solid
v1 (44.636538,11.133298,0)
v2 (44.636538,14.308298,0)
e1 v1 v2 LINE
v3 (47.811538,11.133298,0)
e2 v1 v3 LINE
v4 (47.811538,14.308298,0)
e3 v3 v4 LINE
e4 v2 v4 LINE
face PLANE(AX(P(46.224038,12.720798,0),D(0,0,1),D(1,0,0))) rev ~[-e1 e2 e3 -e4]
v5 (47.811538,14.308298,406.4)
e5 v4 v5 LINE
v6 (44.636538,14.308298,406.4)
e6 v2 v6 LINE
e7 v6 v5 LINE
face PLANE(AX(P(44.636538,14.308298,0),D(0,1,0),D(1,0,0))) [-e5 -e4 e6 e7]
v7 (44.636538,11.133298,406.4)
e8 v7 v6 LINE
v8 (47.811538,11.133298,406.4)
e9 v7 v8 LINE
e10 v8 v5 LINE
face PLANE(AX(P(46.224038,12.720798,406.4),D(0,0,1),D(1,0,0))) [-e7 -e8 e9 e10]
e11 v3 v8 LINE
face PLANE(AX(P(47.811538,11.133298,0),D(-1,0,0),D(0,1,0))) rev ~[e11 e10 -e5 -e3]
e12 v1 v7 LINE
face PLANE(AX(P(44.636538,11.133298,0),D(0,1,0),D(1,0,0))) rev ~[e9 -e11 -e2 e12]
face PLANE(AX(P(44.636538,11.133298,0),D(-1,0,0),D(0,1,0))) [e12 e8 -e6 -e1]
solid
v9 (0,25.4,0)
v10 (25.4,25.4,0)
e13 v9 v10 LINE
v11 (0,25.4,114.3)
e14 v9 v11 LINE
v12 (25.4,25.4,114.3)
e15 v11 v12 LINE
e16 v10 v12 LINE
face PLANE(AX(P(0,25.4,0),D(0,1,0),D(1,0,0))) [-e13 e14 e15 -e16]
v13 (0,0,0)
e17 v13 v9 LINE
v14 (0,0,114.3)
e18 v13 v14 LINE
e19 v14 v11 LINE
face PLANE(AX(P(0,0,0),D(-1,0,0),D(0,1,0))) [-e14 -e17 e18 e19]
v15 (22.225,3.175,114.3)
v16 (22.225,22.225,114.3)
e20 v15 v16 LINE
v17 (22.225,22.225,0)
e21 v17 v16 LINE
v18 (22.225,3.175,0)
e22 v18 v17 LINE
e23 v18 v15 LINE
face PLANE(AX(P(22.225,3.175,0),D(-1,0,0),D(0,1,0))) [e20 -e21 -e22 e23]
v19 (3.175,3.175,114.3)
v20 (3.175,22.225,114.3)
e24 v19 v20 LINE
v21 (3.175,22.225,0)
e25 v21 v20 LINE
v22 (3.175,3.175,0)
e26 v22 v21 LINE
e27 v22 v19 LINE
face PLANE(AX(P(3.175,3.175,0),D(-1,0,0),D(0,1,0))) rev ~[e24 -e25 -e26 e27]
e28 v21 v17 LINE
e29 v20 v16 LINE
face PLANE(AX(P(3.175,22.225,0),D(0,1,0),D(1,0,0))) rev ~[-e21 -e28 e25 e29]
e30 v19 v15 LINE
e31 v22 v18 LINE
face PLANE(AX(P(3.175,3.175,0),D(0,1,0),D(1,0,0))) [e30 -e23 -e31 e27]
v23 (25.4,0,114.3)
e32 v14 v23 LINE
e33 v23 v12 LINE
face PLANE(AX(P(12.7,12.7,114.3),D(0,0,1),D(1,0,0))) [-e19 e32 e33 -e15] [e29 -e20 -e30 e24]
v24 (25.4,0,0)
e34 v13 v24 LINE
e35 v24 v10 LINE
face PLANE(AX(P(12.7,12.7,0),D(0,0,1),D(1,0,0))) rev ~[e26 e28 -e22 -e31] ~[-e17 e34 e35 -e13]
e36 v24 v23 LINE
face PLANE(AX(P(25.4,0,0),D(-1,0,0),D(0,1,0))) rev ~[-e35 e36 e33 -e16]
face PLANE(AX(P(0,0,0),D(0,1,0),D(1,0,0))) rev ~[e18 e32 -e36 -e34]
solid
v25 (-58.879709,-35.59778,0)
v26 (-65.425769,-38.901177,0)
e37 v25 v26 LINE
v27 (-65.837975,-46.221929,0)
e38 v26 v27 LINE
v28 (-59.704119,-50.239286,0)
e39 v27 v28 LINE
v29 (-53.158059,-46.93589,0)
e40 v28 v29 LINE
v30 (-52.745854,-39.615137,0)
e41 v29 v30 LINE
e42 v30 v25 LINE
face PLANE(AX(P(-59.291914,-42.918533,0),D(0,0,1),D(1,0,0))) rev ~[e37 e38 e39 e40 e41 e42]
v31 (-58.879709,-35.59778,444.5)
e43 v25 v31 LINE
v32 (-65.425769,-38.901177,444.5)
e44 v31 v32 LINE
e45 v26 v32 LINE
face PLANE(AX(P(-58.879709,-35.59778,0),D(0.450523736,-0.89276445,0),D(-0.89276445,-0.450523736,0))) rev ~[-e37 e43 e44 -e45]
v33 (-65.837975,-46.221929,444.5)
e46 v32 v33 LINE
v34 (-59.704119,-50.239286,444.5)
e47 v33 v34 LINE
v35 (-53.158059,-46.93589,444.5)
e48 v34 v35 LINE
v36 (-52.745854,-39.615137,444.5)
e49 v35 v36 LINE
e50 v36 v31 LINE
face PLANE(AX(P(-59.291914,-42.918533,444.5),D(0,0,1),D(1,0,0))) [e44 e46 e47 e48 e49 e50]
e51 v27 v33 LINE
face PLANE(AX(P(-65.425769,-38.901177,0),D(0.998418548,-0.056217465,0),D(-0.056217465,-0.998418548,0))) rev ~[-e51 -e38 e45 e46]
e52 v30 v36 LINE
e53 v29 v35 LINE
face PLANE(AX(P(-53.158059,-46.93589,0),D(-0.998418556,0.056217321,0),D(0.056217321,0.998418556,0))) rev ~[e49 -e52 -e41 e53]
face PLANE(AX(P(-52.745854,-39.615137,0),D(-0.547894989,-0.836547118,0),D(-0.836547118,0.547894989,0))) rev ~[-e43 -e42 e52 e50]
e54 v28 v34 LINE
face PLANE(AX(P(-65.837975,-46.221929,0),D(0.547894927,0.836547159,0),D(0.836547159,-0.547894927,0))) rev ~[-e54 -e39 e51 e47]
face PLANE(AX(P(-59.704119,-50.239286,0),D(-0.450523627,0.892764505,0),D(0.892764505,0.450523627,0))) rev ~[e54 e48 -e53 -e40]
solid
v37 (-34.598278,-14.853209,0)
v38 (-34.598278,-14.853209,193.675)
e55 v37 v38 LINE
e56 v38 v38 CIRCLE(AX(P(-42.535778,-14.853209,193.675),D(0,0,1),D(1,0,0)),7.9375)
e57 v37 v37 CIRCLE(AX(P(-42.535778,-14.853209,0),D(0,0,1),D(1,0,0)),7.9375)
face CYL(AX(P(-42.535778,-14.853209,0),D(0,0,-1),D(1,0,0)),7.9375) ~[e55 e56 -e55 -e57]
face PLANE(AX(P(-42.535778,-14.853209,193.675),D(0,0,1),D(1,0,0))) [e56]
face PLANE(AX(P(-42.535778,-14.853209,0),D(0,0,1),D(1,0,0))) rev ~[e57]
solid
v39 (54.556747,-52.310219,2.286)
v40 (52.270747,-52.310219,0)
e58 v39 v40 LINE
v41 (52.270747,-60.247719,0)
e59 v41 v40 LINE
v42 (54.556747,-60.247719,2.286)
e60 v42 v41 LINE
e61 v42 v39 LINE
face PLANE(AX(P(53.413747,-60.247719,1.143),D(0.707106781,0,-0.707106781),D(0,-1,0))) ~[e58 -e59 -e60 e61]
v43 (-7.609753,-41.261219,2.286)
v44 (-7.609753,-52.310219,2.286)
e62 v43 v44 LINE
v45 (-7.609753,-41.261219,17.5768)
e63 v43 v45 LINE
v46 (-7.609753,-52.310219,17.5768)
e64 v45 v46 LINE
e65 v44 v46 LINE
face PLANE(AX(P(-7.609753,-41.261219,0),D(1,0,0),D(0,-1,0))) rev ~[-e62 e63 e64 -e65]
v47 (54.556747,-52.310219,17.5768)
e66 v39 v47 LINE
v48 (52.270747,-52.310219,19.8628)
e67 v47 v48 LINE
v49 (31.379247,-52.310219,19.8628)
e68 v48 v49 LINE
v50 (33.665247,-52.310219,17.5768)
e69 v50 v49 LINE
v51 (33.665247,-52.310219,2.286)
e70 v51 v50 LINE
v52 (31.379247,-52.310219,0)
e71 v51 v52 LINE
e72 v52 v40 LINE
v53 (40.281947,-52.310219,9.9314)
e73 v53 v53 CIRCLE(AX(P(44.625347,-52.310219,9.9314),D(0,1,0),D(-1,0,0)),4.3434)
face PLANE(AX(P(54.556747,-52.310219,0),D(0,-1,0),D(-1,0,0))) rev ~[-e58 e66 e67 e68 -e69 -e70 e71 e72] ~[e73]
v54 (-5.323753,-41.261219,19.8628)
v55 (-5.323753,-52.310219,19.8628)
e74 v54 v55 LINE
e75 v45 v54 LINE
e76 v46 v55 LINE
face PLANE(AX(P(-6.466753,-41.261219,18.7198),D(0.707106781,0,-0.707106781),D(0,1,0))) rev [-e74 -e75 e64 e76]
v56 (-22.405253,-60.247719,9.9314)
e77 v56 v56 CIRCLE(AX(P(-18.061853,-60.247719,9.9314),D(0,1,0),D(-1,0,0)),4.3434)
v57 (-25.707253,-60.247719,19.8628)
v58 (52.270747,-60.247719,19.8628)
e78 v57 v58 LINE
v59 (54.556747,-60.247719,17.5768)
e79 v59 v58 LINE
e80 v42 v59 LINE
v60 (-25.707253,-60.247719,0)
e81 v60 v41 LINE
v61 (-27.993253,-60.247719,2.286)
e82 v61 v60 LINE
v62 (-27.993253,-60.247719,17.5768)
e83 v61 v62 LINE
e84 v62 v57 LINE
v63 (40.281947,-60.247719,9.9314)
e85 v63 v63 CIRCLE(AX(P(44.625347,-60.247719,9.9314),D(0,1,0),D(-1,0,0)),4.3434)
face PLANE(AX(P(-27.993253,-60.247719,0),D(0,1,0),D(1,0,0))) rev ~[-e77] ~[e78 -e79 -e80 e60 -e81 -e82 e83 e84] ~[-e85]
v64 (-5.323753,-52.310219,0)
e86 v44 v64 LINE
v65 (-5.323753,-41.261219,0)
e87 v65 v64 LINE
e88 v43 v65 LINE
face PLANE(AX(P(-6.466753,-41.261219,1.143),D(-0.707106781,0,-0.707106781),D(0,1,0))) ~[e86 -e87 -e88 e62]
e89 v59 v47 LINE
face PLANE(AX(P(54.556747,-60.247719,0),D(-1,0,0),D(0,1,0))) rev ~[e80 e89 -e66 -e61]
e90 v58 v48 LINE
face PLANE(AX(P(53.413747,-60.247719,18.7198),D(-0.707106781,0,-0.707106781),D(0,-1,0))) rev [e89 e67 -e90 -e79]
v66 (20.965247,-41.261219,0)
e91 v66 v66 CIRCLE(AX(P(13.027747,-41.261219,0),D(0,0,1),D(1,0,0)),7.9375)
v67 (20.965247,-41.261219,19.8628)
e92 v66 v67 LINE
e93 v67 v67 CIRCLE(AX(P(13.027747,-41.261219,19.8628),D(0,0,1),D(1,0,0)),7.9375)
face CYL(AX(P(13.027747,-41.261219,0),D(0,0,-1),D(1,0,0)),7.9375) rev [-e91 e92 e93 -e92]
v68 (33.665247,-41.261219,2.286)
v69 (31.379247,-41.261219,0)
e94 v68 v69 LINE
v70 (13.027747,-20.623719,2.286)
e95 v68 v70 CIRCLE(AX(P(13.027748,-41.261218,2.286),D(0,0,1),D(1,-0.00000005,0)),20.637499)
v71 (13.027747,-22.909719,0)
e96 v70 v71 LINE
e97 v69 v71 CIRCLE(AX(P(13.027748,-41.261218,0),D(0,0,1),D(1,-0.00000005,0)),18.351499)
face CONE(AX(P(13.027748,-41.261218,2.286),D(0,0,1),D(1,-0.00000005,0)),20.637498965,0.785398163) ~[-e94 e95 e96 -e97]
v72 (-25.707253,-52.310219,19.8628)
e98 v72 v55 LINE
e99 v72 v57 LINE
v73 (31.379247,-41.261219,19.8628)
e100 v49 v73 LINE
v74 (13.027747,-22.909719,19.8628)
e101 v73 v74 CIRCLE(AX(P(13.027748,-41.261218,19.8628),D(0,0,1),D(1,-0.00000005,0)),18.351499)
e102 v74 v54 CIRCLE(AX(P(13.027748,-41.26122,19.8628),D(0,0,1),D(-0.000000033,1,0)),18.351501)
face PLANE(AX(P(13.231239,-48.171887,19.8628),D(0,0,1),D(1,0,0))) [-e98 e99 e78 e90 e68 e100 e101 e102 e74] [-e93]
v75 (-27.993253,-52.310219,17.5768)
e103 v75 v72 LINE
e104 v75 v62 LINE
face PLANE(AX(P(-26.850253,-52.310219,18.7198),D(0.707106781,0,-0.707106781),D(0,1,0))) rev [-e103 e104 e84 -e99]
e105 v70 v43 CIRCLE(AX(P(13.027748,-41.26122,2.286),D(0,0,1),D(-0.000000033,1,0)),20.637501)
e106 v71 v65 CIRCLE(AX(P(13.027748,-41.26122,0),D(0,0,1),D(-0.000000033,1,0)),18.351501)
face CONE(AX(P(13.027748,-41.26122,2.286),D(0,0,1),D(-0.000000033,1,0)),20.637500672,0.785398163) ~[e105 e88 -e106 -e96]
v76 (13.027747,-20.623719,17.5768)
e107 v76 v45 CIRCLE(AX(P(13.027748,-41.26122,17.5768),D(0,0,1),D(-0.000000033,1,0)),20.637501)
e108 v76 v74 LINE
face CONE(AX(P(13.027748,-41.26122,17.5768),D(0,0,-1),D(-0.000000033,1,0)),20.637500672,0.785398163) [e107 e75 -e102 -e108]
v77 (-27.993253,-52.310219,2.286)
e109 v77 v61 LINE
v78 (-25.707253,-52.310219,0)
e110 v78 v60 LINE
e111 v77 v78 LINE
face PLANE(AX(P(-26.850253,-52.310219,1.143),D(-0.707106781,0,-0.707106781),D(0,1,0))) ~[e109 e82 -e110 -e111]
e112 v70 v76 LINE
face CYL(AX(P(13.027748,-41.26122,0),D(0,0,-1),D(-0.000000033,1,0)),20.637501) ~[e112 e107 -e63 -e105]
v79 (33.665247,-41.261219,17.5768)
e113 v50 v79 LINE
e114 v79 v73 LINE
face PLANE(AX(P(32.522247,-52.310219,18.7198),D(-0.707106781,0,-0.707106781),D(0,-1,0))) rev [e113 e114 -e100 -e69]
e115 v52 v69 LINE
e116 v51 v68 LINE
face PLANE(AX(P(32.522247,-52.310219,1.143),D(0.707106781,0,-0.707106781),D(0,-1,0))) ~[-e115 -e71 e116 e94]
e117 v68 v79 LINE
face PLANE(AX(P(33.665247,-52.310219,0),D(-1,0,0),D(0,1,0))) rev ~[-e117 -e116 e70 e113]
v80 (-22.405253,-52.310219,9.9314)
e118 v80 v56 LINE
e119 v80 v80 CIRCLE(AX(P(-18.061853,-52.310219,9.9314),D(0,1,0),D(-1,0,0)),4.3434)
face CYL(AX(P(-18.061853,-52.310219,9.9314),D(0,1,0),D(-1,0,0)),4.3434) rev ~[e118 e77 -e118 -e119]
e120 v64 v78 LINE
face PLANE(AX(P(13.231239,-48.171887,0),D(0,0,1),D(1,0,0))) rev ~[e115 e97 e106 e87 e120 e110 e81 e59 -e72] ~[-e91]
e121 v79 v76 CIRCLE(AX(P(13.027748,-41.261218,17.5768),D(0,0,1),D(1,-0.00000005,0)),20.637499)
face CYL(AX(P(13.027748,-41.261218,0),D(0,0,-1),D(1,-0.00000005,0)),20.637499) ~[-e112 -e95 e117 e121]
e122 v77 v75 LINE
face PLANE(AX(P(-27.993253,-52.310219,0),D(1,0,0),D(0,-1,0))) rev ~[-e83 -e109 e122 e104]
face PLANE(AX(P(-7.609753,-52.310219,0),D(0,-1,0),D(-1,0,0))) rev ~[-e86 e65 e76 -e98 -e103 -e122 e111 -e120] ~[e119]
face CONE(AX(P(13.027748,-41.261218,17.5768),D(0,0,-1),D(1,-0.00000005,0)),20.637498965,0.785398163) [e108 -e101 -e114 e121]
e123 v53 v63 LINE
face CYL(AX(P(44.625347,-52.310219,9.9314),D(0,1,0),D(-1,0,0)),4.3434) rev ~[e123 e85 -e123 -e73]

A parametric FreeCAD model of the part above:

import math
import FreeCAD as App
import Part
import Sketcher
Q = App.Units.Quantity


def edges_at(feature, points):
    """Names of the edges that pass closest to the given points."""
    edges = feature.Shape.Edges
    near = lambda p: min(range(len(edges)), key=lambda i: edges[i].distToShape(Part.Vertex(*p))[0])
    return sorted({f"Edge{near(p) + 1}" for p in points})


def add_polygon(sketch, points):
    """Adds a closed chain of lines whose ends are joined by coincident constraints."""
    first, n = sketch.GeometryCount, len(points)
    for a, b in zip(points, points[1:] + points[:1]):
        sketch.addGeometry(Part.LineSegment(App.Vector(*a, 0), App.Vector(*b, 0)), False)
    for i in range(n):
        sketch.addConstraint(Sketcher.Constraint("Coincident", first + i, 2, first + (i + 1) % n, 1))

doc = App.newDocument("Part")
body = doc.addObject("PartDesign::Body", "Body")

sketch1 = doc.addObject("Sketcher::SketchObject", "Sketch")
body.addObject(sketch1)
sketch1.AttachmentSupport = (doc.XY_Plane, [""])
sketch1.MapMode = "FlatFace"
add_polygon(sketch1, [(0, 25.4), (0, 0), (25.4, 0), (25.4, 25.4)])
add_polygon(sketch1, [(22.225, 3.175), (3.175, 3.175), (3.175, 22.225), (22.225, 22.225)])
sketch1.addConstraint([
    Sketcher.Constraint("Vertical", 0),
    Sketcher.Constraint("Horizontal", 1),
    Sketcher.Constraint("Vertical", 2),
    Sketcher.Constraint("Horizontal", 3),
    Sketcher.Constraint("Horizontal", 4),
    Sketcher.Constraint("Vertical", 5),
    Sketcher.Constraint("Horizontal", 6),
    Sketcher.Constraint("Vertical", 7),
    Sketcher.Constraint("Coincident", 0, 2, -1, 1),
    Sketcher.Constraint("Equal", 3, 0),
    Sketcher.Constraint("Equal", 6, 5),
    Sketcher.Constraint("DistanceX", 1, 1, 1, 2, Q("1 in")),
    Sketcher.Constraint("DistanceX", 4, 2, 4, 1, Q("0.75 in")),
    Sketcher.Constraint("DistanceX", -1, 1, 4, 2, Q("0.125 in")),
    Sketcher.Constraint("DistanceY", -1, 1, 4, 2, Q("0.125 in")),
])
pad1 = doc.addObject("PartDesign::Pad", "Pad")
body.addObject(pad1)
pad1.Profile = sketch1
pad1.Length = Q("4.5 in")
body2 = doc.addObject("PartDesign::Body", "Body001")

sketch2 = doc.addObject("Sketcher::SketchObject", "Sketch001")
body2.addObject(sketch2)
sketch2.AttachmentSupport = (doc.getObject("XY_Plane001"), [""])
sketch2.MapMode = "FlatFace"
sketch2.addGeometry(Part.Circle(App.Vector(-42.535778, -14.853209, 0), App.Vector(0, 0, 1), 7.9375), False)
sketch2.addConstraint([
    Sketcher.Constraint("Diameter", 0, Q("0.625 in")),
    Sketcher.Constraint("DistanceY", 0, 3, -1, 1, Q("14.853209 mm")),
    Sketcher.Constraint("DistanceX", 0, 3, -1, 1, Q("42.535778 mm")),
])
pad2 = doc.addObject("PartDesign::Pad", "Pad001")
body2.addObject(pad2)
pad2.Profile = sketch2
pad2.Length = Q("7.625 in")
body3 = doc.addObject("PartDesign::Body", "Body002")

sketch3 = doc.addObject("Sketcher::SketchObject", "Sketch002")
body3.addObject(sketch3)
sketch3.AttachmentSupport = (doc.getObject("XY_Plane002"), [""])
sketch3.MapMode = "FlatFace"
sketch3.addGeometry([
    Part.LineSegment(App.Vector(-27.993253, -52.310219, 0), App.Vector(-27.993253, -60.247719, 0)),
    Part.LineSegment(App.Vector(-27.993253, -60.247719, 0), App.Vector(54.556747, -60.247719, 0)),
    Part.LineSegment(App.Vector(54.556747, -60.247719, 0), App.Vector(54.556747, -52.310219, 0)),
    Part.LineSegment(App.Vector(54.556747, -52.310219, 0), App.Vector(33.665247, -52.310219, 0)),
    Part.LineSegment(App.Vector(33.665247, -52.310219, 0), App.Vector(33.665247, -41.261219, 0)),
    Part.ArcOfCircle(Part.Circle(App.Vector(13.027748, -41.261218, 0), App.Vector(0, 0, 1), 20.637499), math.radians(-0.000003), math.radians(90.000003)),
    Part.ArcOfCircle(Part.Circle(App.Vector(13.027748, -41.26122, 0), App.Vector(0, 0, 1), 20.637501), math.radians(90.000002), math.radians(179.999998)),
    Part.LineSegment(App.Vector(-7.609753, -41.261219, 0), App.Vector(-7.609753, -52.310219, 0)),
    Part.LineSegment(App.Vector(-7.609753, -52.310219, 0), App.Vector(-27.993253, -52.310219, 0)),
    Part.Circle(App.Vector(13.027747, -41.261219, 0), App.Vector(0, 0, 1), 7.9375),
], False)
sketch3.addConstraint([
    Sketcher.Constraint("Coincident", 0, 2, 1, 1),
    Sketcher.Constraint("Coincident", 1, 2, 2, 1),
    Sketcher.Constraint("Coincident", 2, 2, 3, 1),
    Sketcher.Constraint("Coincident", 3, 2, 4, 1),
    Sketcher.Constraint("Tangent", 4, 2, 5, 1),
    Sketcher.Constraint("Tangent", 5, 2, 6, 1),
    Sketcher.Constraint("Tangent", 6, 2, 7, 1),
    Sketcher.Constraint("Coincident", 7, 2, 8, 1),
    Sketcher.Constraint("Coincident", 8, 2, 0, 1),
    Sketcher.Constraint("Vertical", 0),
    Sketcher.Constraint("Horizontal", 1),
    Sketcher.Constraint("Vertical", 2),
    Sketcher.Constraint("Horizontal", 3),
    Sketcher.Constraint("Vertical", 4),
    Sketcher.Constraint("Vertical", 7),
    Sketcher.Constraint("Horizontal", 8),
    Sketcher.Constraint("Coincident", 9, 3, 5, 3),
    Sketcher.Constraint("Equal", 5, 6),
    Sketcher.Constraint("Horizontal", 3, 2, 7, 2),
    Sketcher.Constraint("Vertical", 9, 3, 5, 2),
    Sketcher.Constraint("Diameter", 9, Q("0.625 in")),
    Sketcher.Constraint("Radius", 5, Q("0.8125 in")),
    Sketcher.Constraint("DistanceX", 1, 1, 1, 2, Q("3.25 in")),
    Sketcher.Constraint("DistanceY", 0, 2, 0, 1, Q("0.3125 in")),
    Sketcher.Constraint("DistanceY", 4, 1, 4, 2, Q("0.435 in")),
    Sketcher.Constraint("DistanceX", 3, 2, 3, 1, Q("0.8225 in")),
    Sketcher.Constraint("DistanceX", -1, 1, 5, 3, Q("13.027748 mm")),
    Sketcher.Constraint("DistanceY", 6, 3, -1, 1, Q("41.26122 mm")),
])
pad3 = doc.addObject("PartDesign::Pad", "Pad002")
body3.addObject(pad3)
pad3.Profile = sketch3
pad3.Length = Q("0.782 in")
doc.recompute()

chamfer = doc.addObject("PartDesign::Chamfer", "Chamfer")
body3.addObject(chamfer)
chamfer.Base = (pad3, edges_at(pad3, [
    (13.028, -20.624, 9.931),
    (-7.61, -46.786, 19.863),
    (33.665, -46.786, 19.863),
    (33.665, -46.786, 0),
    (13.028, -20.624, 9.931),
    (-7.61, -46.786, 0),
    (54.557, -56.279, 0),
    (54.557, -56.279, 19.863),
    (-27.993, -56.279, 0),
    (-27.993, -56.279, 19.863),
]))
chamfer.Size = Q("0.09 in")

sketch4 = doc.addObject("Sketcher::SketchObject", "Sketch003")
body3.addObject(sketch4)
sketch4.AttachmentSupport = (doc.getObject("XZ_Plane002"), [""])
sketch4.MapMode = "FlatFace"
sketch4.AttachmentOffset = App.Placement(App.Vector(0, 0, 52.310219), App.Rotation())
sketch4.addGeometry([
    Part.Circle(App.Vector(44.625347, 9.9314, 0), App.Vector(0, 0, 1), 4.3434),
    Part.Circle(App.Vector(-18.061853, 9.9314, 0), App.Vector(0, 0, 1), 4.3434),
], False)
sketch4.addConstraint([
    Sketcher.Constraint("Equal", 0, 1),
    Sketcher.Constraint("Horizontal", 0, 3, 1, 3),
    Sketcher.Constraint("Diameter", 0, Q("0.342 in")),
    Sketcher.Constraint("DistanceY", -1, 1, 0, 3, Q("0.391 in")),
    Sketcher.Constraint("DistanceX", 1, 3, 0, 3, Q("2.468 in")),
    Sketcher.Constraint("DistanceX", -1, 1, 0, 3, Q("44.625347 mm")),
])
pocket1 = doc.addObject("PartDesign::Pocket", "Pocket")
body3.addObject(pocket1)
pocket1.Profile = sketch4
pocket1.Length = Q("1 in")
pocket1.Reversed = True
body4 = doc.addObject("PartDesign::Body", "Body003")

sketch5 = doc.addObject("Sketcher::SketchObject", "Sketch004")
body4.addObject(sketch5)
sketch5.AttachmentSupport = (doc.getObject("XY_Plane003"), [""])
sketch5.MapMode = "FlatFace"
add_polygon(sketch5, [(-52.745854, -39.615137), (-58.879709, -35.59778), (-65.425769, -38.901177), (-65.837975, -46.221929), (-59.704119, -50.239286), (-53.158059, -46.93589)])
sketch5.addConstraint([
    Sketcher.Constraint("Parallel", 0, 3),
    Sketcher.Constraint("Parallel", 1, 4),
    Sketcher.Constraint("Parallel", 2, 5),
    Sketcher.Constraint("Equal", 0, 1),
    Sketcher.Constraint("Equal", 1, 2),
    Sketcher.Constraint("Equal", 2, 3),
    Sketcher.Constraint("Distance", 0, Q("7.332348 mm")),
    Sketcher.Constraint("DistanceX", 0, 2, -1, 1, Q("58.879709 mm")),
    Sketcher.Constraint("DistanceY", 0, 2, -1, 1, Q("35.59778 mm")),
    Sketcher.Constraint("DistanceX", 1, 2, -1, 1, Q("65.425769 mm")),
    Sketcher.Constraint("DistanceY", 2, 2, -1, 1, Q("46.221929 mm")),
    Sketcher.Constraint("DistanceX", 3, 2, -1, 1, Q("59.704119 mm")),
])
pad4 = doc.addObject("PartDesign::Pad", "Pad003")
body4.addObject(pad4)
pad4.Profile = sketch5
pad4.Length = Q("17.5 in")
body5 = doc.addObject("PartDesign::Body", "Body004")

sketch6 = doc.addObject("Sketcher::SketchObject", "Sketch005")
body5.addObject(sketch6)
sketch6.AttachmentSupport = (doc.getObject("XY_Plane004"), [""])
sketch6.MapMode = "FlatFace"
add_polygon(sketch6, [(44.636538, 14.308298), (44.636538, 11.133298), (47.811538, 11.133298), (47.811538, 14.308298)])
sketch6.addConstraint([
    Sketcher.Constraint("Vertical", 0),
    Sketcher.Constraint("Horizontal", 1),
    Sketcher.Constraint("Vertical", 2),
    Sketcher.Constraint("Horizontal", 3),
    Sketcher.Constraint("Equal", 3, 0),
    Sketcher.Constraint("DistanceX", 1, 1, 1, 2, Q("0.125 in")),
    Sketcher.Constraint("DistanceY", -1, 1, 2, 2, Q("14.308298 mm")),
    Sketcher.Constraint("DistanceX", -1, 1, 0, 2, Q("44.636538 mm")),
])
pad5 = doc.addObject("PartDesign::Pad", "Pad004")
body5.addObject(pad5)
pad5.Profile = sketch6
pad5.Length = Q("16 in")

doc.recompute()
